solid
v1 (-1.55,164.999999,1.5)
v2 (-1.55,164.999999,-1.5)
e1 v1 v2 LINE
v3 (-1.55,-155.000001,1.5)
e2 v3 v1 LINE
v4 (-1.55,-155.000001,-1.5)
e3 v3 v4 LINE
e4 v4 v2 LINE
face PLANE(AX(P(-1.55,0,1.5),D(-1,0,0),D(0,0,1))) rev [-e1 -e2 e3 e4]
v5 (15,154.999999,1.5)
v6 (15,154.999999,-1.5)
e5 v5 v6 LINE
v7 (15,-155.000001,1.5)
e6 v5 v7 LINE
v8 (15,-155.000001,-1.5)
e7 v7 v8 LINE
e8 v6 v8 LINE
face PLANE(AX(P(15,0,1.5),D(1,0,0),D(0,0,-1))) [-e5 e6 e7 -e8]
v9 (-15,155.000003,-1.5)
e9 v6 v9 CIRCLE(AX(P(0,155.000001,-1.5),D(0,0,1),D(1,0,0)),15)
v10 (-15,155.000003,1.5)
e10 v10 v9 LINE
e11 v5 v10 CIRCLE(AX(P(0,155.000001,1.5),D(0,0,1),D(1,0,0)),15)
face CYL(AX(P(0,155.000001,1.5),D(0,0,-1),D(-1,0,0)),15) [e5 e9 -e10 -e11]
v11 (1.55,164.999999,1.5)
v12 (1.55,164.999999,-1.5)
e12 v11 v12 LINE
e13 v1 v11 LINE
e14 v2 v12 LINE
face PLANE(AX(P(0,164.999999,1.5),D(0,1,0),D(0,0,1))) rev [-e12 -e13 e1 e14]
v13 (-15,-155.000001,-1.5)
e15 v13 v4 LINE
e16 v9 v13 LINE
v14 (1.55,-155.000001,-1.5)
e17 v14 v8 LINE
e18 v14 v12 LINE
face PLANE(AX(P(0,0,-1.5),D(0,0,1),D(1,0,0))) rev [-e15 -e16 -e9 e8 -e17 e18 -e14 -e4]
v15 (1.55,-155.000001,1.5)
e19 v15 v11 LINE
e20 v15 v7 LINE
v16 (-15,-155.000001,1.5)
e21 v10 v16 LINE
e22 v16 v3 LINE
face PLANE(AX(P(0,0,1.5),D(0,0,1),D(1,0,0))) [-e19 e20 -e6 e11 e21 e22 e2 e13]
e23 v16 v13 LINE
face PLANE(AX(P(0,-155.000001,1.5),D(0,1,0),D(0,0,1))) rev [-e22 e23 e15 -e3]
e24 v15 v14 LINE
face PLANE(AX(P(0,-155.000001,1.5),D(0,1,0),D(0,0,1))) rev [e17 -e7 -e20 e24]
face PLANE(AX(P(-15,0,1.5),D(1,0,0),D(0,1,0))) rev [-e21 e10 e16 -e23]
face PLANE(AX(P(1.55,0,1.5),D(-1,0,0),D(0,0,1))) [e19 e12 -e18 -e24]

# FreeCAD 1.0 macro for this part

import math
import FreeCAD as App
import Part
import Sketcher
Q = App.Units.Quantity

doc = App.newDocument("Part")
body = doc.addObject("PartDesign::Body", "Body")

sketch1 = doc.addObject("Sketcher::SketchObject", "Sketch")
body.addObject(sketch1)
sketch1.AttachmentSupport = (doc.XY_Plane, [""])
sketch1.MapMode = "FlatFace"
sketch1.addGeometry([
    Part.LineSegment(App.Vector(-15, -155.000001, 0), App.Vector(-1.55, -155.000001, 0)),
    Part.LineSegment(App.Vector(-1.55, -155.000001, 0), App.Vector(-1.55, 164.999999, 0)),
    Part.LineSegment(App.Vector(-1.55, 164.999999, 0), App.Vector(1.55, 164.999999, 0)),
    Part.LineSegment(App.Vector(1.55, 164.999999, 0), App.Vector(1.55, -155.000001, 0)),
    Part.LineSegment(App.Vector(1.55, -155.000001, 0), App.Vector(15, -155.000001, 0)),
    Part.LineSegment(App.Vector(15, -155.000001, 0), App.Vector(15, 154.999999, 0)),
    Part.ArcOfCircle(Part.Circle(App.Vector(0, 155.000001, 0), App.Vector(0, 0, 1), 15), math.radians(-0.000008), math.radians(179.999992)),
    Part.LineSegment(App.Vector(-15, 155.000003, 0), App.Vector(-15, -155.000001, 0)),
], False)
sketch1.addConstraint([
    Sketcher.Constraint("Coincident", 0, 2, 1, 1),
    Sketcher.Constraint("Coincident", 1, 2, 2, 1),
    Sketcher.Constraint("Coincident", 2, 2, 3, 1),
    Sketcher.Constraint("Coincident", 3, 2, 4, 1),
    Sketcher.Constraint("Coincident", 4, 2, 5, 1),
    Sketcher.Constraint("Tangent", 5, 2, 6, 1),
    Sketcher.Constraint("Tangent", 6, 2, 7, 1),
    Sketcher.Constraint("Coincident", 7, 2, 0, 1),
    Sketcher.Constraint("Horizontal", 0),
    Sketcher.Constraint("Vertical", 1),
    Sketcher.Constraint("Horizontal", 2),
    Sketcher.Constraint("Vertical", 3),
    Sketcher.Constraint("Horizontal", 4),
    Sketcher.Constraint("Vertical", 5),
    Sketcher.Constraint("Vertical", 7),
    Sketcher.Constraint("Symmetric", 4, 2, 6, 2, -1, 1),
    Sketcher.Constraint("Symmetric", 0, 2, 3, 2, -2),
    Sketcher.Constraint("Radius", 6, Q("15 mm")),
    Sketcher.Constraint("DistanceY", 1, 1, 1, 2, Q("320 mm")),
    Sketcher.Constraint("DistanceY", 5, 1, 5, 2, Q("310 mm")),
    Sketcher.Constraint("DistanceX", 2, 1, 2, 2, Q("3.1 mm")),
])
pad1 = doc.addObject("PartDesign::Pad", "Pad")
body.addObject(pad1)
pad1.Profile = sketch1
pad1.Length = 3
pad1.Midplane = True

doc.recompute()
